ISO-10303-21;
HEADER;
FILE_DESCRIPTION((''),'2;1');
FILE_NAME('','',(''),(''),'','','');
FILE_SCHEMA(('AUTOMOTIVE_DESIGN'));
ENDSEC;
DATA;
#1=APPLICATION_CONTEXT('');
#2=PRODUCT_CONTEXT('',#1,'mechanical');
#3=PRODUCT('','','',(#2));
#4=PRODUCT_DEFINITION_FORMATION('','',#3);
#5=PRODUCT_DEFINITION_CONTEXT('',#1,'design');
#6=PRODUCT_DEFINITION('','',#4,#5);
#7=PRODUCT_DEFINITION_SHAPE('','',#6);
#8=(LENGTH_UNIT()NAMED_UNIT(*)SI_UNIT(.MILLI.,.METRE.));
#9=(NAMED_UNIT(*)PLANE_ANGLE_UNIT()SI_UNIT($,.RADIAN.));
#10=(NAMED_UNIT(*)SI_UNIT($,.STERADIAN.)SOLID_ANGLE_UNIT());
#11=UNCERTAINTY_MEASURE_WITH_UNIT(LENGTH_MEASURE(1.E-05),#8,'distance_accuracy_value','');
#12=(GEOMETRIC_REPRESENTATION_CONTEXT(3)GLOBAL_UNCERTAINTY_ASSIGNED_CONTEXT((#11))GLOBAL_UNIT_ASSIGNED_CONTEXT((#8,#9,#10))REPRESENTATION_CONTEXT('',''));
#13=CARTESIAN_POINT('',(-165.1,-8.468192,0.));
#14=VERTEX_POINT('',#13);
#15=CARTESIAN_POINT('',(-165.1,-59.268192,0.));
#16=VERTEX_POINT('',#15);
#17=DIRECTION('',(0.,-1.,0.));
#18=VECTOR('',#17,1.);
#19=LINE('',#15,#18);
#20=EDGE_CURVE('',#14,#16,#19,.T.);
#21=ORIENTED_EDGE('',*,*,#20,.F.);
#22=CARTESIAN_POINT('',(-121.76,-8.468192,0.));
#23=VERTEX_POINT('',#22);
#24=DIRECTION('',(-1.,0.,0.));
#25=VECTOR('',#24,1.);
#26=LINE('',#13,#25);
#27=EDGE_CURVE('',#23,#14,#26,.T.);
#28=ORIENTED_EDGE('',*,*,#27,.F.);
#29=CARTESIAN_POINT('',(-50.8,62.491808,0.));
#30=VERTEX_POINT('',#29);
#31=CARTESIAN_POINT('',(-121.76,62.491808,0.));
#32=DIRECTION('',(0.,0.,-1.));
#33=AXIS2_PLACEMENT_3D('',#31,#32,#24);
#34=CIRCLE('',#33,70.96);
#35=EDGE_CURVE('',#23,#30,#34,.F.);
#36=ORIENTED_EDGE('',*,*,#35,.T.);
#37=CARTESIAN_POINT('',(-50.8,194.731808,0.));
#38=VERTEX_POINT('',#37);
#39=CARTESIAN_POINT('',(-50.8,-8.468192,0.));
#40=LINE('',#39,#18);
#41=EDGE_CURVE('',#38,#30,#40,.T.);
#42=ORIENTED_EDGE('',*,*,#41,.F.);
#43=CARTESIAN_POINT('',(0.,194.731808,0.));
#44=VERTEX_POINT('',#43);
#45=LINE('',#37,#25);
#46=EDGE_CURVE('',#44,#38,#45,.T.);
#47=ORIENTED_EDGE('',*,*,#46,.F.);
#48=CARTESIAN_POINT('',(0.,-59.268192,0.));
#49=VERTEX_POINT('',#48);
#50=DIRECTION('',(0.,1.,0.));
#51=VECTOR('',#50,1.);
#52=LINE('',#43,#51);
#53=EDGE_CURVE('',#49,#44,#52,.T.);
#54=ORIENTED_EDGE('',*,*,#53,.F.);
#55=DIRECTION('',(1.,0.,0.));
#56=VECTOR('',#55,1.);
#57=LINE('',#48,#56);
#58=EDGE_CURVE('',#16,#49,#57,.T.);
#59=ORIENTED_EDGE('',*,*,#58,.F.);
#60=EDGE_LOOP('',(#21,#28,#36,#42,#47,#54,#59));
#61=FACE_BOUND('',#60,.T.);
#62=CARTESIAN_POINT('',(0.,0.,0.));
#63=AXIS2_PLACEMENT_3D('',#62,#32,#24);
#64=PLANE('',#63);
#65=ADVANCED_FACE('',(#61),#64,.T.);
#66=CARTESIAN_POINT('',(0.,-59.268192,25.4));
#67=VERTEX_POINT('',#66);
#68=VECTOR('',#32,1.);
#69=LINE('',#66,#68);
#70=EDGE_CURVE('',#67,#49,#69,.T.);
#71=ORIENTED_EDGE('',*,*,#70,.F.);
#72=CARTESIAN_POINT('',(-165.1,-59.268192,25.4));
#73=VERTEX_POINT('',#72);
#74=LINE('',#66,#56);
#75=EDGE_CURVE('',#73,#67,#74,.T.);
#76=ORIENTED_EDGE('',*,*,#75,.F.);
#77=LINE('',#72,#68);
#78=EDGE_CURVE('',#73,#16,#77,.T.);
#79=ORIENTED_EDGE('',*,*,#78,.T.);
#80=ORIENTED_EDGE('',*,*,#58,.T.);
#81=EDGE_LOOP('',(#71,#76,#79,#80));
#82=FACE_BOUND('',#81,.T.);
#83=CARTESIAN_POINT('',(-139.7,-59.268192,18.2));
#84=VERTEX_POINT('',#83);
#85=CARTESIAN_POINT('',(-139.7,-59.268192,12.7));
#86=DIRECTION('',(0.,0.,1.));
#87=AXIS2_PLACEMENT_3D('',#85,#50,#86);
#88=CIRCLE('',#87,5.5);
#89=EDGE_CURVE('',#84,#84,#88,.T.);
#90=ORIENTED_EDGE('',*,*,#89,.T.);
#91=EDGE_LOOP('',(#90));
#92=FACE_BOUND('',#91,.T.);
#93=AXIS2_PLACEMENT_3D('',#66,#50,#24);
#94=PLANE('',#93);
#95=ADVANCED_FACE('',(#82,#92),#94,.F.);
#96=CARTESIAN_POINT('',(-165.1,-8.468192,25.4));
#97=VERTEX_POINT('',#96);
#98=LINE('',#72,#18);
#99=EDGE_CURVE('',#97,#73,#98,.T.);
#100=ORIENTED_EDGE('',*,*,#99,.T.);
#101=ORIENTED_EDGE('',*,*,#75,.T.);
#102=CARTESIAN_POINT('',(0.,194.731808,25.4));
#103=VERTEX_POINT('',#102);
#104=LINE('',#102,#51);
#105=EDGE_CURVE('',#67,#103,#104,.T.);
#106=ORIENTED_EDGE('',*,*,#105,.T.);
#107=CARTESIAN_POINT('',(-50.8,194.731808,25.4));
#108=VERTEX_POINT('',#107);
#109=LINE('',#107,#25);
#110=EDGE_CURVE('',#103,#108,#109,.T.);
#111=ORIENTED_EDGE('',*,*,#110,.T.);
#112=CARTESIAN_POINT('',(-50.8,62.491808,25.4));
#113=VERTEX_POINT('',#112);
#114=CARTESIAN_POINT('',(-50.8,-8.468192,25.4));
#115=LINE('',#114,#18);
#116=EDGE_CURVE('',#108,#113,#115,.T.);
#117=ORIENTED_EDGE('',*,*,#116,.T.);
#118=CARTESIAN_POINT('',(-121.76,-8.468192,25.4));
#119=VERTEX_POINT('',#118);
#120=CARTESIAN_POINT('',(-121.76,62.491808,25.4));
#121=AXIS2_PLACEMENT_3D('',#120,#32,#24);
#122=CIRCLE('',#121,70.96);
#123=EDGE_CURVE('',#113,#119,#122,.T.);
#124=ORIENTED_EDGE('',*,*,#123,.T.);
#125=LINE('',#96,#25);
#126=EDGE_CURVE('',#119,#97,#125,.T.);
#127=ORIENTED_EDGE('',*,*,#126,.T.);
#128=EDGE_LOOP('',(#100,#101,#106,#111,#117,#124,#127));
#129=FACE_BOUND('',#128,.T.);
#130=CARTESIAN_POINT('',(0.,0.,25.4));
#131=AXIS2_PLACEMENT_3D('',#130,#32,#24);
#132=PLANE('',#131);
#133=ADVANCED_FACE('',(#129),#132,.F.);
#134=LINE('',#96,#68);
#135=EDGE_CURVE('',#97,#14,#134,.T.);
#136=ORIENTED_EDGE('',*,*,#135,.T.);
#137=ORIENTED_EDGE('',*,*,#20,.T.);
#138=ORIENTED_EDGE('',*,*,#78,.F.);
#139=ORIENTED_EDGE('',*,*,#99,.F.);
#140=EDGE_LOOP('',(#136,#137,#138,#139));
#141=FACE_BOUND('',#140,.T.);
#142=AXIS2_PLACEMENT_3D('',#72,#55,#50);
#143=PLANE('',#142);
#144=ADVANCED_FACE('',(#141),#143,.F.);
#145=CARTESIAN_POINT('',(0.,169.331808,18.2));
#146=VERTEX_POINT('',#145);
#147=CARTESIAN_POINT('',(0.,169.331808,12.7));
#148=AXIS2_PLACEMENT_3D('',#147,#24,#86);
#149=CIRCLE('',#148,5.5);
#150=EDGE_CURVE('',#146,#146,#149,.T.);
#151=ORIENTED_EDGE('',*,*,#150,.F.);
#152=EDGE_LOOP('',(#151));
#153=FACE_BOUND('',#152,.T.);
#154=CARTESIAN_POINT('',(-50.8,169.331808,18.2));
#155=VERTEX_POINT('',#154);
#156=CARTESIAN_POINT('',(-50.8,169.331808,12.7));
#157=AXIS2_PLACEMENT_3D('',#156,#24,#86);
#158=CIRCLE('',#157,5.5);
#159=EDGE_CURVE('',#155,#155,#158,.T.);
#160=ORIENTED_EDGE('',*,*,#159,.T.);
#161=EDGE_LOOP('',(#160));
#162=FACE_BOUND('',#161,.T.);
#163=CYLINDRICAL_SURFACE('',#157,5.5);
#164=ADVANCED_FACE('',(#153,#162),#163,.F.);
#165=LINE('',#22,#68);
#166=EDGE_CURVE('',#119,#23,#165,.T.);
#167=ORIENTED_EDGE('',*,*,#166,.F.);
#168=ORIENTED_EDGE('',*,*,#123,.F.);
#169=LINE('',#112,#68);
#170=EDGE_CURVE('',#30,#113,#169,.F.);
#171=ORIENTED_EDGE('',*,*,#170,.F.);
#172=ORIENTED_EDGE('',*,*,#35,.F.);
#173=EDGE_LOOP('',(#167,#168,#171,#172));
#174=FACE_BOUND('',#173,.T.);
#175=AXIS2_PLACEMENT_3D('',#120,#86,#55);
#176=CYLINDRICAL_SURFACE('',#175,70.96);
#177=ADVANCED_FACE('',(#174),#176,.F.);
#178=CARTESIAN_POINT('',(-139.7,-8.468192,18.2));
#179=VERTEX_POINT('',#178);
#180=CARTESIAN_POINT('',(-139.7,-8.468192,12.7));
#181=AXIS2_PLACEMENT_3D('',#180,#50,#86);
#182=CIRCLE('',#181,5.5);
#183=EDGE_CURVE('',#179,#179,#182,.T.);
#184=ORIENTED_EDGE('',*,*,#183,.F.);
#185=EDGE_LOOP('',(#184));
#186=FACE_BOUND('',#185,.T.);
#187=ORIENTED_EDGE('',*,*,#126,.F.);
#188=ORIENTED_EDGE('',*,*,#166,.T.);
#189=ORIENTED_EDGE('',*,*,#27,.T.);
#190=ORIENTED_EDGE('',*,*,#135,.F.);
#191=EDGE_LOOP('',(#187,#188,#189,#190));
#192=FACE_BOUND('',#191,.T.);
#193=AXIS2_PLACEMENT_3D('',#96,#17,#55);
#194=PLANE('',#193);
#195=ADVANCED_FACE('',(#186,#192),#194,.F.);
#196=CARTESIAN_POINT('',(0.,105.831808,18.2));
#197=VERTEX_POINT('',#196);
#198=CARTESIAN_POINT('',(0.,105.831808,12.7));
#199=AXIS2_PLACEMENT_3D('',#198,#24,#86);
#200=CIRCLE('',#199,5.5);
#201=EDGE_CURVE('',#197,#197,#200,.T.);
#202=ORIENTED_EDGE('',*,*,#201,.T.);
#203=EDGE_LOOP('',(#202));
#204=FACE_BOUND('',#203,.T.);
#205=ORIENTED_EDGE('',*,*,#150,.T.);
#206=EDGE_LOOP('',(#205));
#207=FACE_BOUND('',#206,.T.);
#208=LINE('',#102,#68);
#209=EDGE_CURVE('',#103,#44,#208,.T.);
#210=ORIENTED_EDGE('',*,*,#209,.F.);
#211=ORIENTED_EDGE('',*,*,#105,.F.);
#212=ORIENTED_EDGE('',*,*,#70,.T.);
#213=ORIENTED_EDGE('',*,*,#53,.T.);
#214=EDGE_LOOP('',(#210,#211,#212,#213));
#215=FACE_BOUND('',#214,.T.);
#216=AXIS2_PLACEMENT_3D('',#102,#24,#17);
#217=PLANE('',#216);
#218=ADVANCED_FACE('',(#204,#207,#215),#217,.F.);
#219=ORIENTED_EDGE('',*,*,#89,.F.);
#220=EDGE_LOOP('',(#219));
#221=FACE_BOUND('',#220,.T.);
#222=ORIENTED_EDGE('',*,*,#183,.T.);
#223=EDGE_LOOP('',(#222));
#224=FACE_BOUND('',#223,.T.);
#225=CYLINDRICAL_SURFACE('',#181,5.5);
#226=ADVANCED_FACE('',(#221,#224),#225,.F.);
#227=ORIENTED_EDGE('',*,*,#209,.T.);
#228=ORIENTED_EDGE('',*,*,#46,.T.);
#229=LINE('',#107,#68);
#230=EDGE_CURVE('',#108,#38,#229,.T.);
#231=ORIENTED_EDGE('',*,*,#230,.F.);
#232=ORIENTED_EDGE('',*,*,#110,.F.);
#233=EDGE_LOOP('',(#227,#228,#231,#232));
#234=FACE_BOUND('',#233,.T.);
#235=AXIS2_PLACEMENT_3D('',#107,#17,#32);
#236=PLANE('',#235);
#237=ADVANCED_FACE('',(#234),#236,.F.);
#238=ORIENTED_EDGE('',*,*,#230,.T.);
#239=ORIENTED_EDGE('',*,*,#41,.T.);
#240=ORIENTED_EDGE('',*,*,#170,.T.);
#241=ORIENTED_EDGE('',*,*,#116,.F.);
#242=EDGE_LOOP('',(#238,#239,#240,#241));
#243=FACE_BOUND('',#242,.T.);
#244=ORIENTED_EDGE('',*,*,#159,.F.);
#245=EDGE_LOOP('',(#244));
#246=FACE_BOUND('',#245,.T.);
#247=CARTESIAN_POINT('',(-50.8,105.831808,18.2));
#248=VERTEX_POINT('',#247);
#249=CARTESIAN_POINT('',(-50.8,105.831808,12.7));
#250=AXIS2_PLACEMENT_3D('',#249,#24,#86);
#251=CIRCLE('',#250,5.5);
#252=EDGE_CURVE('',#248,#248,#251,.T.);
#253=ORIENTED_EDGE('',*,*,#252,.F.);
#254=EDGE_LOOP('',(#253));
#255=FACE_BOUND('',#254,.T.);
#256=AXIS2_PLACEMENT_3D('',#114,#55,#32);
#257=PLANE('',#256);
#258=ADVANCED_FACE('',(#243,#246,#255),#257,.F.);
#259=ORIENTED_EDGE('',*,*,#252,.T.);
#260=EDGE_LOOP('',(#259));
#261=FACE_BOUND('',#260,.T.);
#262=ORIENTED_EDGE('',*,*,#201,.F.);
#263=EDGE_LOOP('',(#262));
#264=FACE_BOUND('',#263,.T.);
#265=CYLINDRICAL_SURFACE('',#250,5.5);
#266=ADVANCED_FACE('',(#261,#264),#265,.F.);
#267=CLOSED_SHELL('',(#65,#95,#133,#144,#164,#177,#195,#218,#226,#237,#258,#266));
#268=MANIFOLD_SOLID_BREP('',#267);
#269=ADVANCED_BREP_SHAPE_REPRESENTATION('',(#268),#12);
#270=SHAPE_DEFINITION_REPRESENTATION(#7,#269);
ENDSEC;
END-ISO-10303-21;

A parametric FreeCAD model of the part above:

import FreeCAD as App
import Part
import Sketcher

V = App.Vector
Q = App.Units.Quantity


def edges_at(feature, points):
    """Names of the edges that pass closest to the given points."""
    edges = feature.Shape.Edges
    near = lambda p: min(range(len(edges)), key=lambda i: edges[i].distToShape(Part.Vertex(*p))[0])
    return sorted({f"Edge{near(p) + 1}" for p in points})

doc = App.newDocument("Part")
body = doc.addObject("PartDesign::Body", "Body")

# Sketch on XY plane
sketch1 = body.newObject("Sketcher::SketchObject", "Sketch")
sketch1.AttachmentSupport = (doc.getObject("XY_Plane"), [""])
sketch1.MapMode = "FlatFace"
sketch1.addGeometry([
    Part.LineSegment(V(0, -59, 0), V(0, 195, 0)),  # 0
    Part.LineSegment(V(0, 195, 0), V(-51, 195, 0)),  # 1
    Part.LineSegment(V(-51, 195, 0), V(-51, -8, 0)),  # 2
    Part.LineSegment(V(-51, -8, 0), V(-165, -8, 0)),  # 3
    Part.LineSegment(V(-165, -8, 0), V(-165, -59, 0)),  # 4
    Part.LineSegment(V(-165, -59, 0), V(0, -59, 0)),  # 5
], False)
sketch1.addConstraint([
    Sketcher.Constraint("Coincident", 0, 2, 1, 1),
    Sketcher.Constraint("Coincident", 1, 2, 2, 1),
    Sketcher.Constraint("Coincident", 2, 2, 3, 1),
    Sketcher.Constraint("Coincident", 3, 2, 4, 1),
    Sketcher.Constraint("Coincident", 4, 2, 5, 1),
    Sketcher.Constraint("Coincident", 5, 2, 0, 1),
    Sketcher.Constraint("Vertical", 0),
    Sketcher.Constraint("Horizontal", 1),
    Sketcher.Constraint("Vertical", 2),
    Sketcher.Constraint("Horizontal", 3),
    Sketcher.Constraint("Vertical", 4),
    Sketcher.Constraint("Horizontal", 5),
    Sketcher.Constraint("PointOnObject", 0, 2, -2),
    Sketcher.Constraint("Equal", 1, 4),
    Sketcher.Constraint("DistanceX", 1, 2, 1, 1, Q("2 in")),
    Sketcher.Constraint("DistanceY", 0, 1, 0, 2, Q("10 in")),
    Sketcher.Constraint("DistanceX", 3, 2, 3, 1, Q("4.5 in")),
    Sketcher.Constraint("DistanceY", -1, 1, 0, 2, 194.731808),
])
pad1 = body.newObject("PartDesign::Pad", "Pad")
pad1.Profile = sketch1
pad1.Length = Q("1 in")

# Sketch on XZ plane
sketch2 = body.newObject("Sketcher::SketchObject", "Sketch001")
sketch2.AttachmentSupport = (doc.getObject("XZ_Plane"), [""])
sketch2.MapMode = "FlatFace"
sketch2.AttachmentOffset = App.Placement(V(0, 0, 8.468192), App.Rotation())
sketch2.addGeometry(Part.Circle(V(-140, 13, 0), V(0, 0, 1), 6), False)
sketch2.addConstraint([
    Sketcher.Constraint("DistanceX", 0, 3, -1, 1, Q("5.5 in")),
    Sketcher.Constraint("DistanceY", -1, 1, 0, 3, Q("0.5 in")),
    Sketcher.Constraint("Diameter", 0, 11.0),
])
doc.recompute()
hole = body.newObject("PartDesign::Hole", "Hole")
hole.Profile = sketch2
hole.ThreadType = "None"
hole.Diameter = 11
hole.DepthType = "ThroughAll"
hole.Reversed = True

# Sketch on YZ plane
sketch3 = body.newObject("Sketcher::SketchObject", "Sketch002")
sketch3.AttachmentSupport = (doc.getObject("YZ_Plane"), [""])
sketch3.MapMode = "FlatFace"
sketch3.AttachmentOffset = App.Placement(V(0, 0, -2 * 25.4), App.Rotation())
sketch3.addGeometry([
    Part.Circle(V(169, 13, 0), V(0, 0, 1), 6),
    Part.Circle(V(106, 13, 0), V(0, 0, 1), 6),
], False)
sketch3.addConstraint([
    Sketcher.Constraint("Equal", 0, 1),
    Sketcher.Constraint("Horizontal", 0, 3, 1, 3),
    Sketcher.Constraint("DistanceY", -1, 1, 0, 3, Q("0.5 in")),
    Sketcher.Constraint("DistanceX", 1, 3, 0, 3, Q("2.5 in")),
    Sketcher.Constraint("Diameter", 0, 11.0),
    Sketcher.Constraint("DistanceX", -1, 1, 0, 3, 169.331808),
])
doc.recompute()
hole2 = body.newObject("PartDesign::Hole", "Hole001")
hole2.Profile = sketch3
hole2.ThreadType = "None"
hole2.Diameter = 11
hole2.DepthType = "ThroughAll"
hole2.Reversed = True
doc.recompute()

fillet = body.newObject("PartDesign::Fillet", "Fillet")
fillet.Base = (hole2, edges_at(hole2, [(-50.8, -8.468, 12.7)]))
fillet.Radius = 70.96

doc.recompute()
